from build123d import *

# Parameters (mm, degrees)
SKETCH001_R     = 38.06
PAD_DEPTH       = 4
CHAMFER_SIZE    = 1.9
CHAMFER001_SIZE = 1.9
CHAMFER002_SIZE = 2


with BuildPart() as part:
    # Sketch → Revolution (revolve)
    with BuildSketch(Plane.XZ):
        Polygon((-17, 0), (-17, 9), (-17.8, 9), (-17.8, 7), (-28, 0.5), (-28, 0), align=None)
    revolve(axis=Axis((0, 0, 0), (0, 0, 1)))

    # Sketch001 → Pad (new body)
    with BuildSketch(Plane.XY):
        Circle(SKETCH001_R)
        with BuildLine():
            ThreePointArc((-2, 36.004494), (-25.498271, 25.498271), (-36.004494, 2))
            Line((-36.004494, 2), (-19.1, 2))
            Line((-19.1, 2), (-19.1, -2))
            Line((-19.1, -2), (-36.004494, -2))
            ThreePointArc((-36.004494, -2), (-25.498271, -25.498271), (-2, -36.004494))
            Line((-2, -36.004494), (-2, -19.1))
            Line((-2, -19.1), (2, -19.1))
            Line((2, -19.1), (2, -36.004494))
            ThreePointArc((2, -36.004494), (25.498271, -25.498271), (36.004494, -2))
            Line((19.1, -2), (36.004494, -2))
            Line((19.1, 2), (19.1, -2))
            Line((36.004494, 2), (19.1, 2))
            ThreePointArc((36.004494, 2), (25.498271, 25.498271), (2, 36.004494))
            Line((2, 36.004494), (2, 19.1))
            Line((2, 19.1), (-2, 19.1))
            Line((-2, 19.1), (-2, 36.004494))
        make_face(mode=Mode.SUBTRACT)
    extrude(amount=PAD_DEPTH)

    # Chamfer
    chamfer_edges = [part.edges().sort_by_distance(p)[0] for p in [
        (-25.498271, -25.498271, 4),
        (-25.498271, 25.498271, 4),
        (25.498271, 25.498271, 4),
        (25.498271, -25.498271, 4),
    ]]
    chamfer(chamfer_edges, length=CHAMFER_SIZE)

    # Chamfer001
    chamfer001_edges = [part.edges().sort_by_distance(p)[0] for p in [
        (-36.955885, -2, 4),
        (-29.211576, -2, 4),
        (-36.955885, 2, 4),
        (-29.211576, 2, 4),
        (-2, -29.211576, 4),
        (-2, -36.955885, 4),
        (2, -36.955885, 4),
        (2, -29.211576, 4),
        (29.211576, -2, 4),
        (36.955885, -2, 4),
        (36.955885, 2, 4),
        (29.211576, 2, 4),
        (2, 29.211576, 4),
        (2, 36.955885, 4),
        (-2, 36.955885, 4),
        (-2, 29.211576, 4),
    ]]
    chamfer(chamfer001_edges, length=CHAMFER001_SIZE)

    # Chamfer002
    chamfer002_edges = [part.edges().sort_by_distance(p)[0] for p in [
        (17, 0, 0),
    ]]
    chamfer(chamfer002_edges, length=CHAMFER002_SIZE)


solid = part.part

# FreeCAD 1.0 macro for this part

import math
import FreeCAD as App
import Part
import Sketcher
Q = App.Units.Quantity


def edges_at(feature, points):
    """Names of the edges that pass closest to the given points."""
    edges = feature.Shape.Edges
    near = lambda p: min(range(len(edges)), key=lambda i: edges[i].distToShape(Part.Vertex(*p))[0])
    return sorted({f"Edge{near(p) + 1}" for p in points})

doc = App.newDocument("Part")
body = doc.addObject("PartDesign::Body", "Body")

# Sketch on XZ plane
sketch1 = body.newObject("Sketcher::SketchObject", "Sketch")
sketch1.AttachmentSupport = (doc.getObject("XZ_Plane"), [""])
sketch1.MapMode = "FlatFace"
sketch1.addGeometry([
    Part.LineSegment(App.Vector(-17, 0, 0), App.Vector(-17, 9, 0)),  # 0
    Part.LineSegment(App.Vector(-17, 9, 0), App.Vector(-17.8, 9, 0)),  # 1
    Part.LineSegment(App.Vector(-17.8, 9, 0), App.Vector(-17.8, 7, 0)),  # 2
    Part.LineSegment(App.Vector(-17.8, 7, 0), App.Vector(-28, 0.5, 0)),  # 3
    Part.LineSegment(App.Vector(-28, 0.5, 0), App.Vector(-28, 0, 0)),  # 4
    Part.LineSegment(App.Vector(-28, 0, 0), App.Vector(-17, 0, 0)),  # 5
], False)
sketch1.addConstraint([
    Sketcher.Constraint("Coincident", 0, 2, 1, 1),
    Sketcher.Constraint("Coincident", 1, 2, 2, 1),
    Sketcher.Constraint("Coincident", 2, 2, 3, 1),
    Sketcher.Constraint("Coincident", 3, 2, 4, 1),
    Sketcher.Constraint("Coincident", 4, 2, 5, 1),
    Sketcher.Constraint("Coincident", 5, 2, 0, 1),
    Sketcher.Constraint("Vertical", 0),
    Sketcher.Constraint("Horizontal", 1),
    Sketcher.Constraint("Vertical", 2),
    Sketcher.Constraint("Vertical", 4),
    Sketcher.Constraint("Horizontal", 5),
    Sketcher.Constraint("PointOnObject", 4, 2, -1),
    Sketcher.Constraint("DistanceX", 5, 1, 5, 2, Q("11 mm")),
    Sketcher.Constraint("DistanceY", 0, 1, 0, 2, Q("9 mm")),
    Sketcher.Constraint("DistanceY", 2, 2, 2, 1, Q("2 mm")),
    Sketcher.Constraint("DistanceX", 1, 2, 1, 1, Q("0.8 mm")),
    Sketcher.Constraint("DistanceY", 4, 2, 4, 1, Q("0.5 mm")),
    Sketcher.Constraint("DistanceX", 0, 2, -1, 1, Q("17 mm")),
])
revolution = body.newObject("PartDesign::Revolution", "Revolution")
revolution.Profile = sketch1
revolution.ReferenceAxis = (sketch1, ["V_Axis"])
revolution.Angle = 360

# Sketch on XY plane
sketch2 = body.newObject("Sketcher::SketchObject", "Sketch001")
sketch2.AttachmentSupport = (doc.getObject("XY_Plane"), [""])
sketch2.MapMode = "FlatFace"
sketch2.addGeometry([
    Part.Circle(App.Vector(0, 0, 0), App.Vector(0, 0, 1), 38.1),  # 0
    Part.ArcOfCircle(Part.Circle(App.Vector(0, 0, 0), App.Vector(0, 0, 1), 36.1), math.radians(93), math.radians(177)),  # 1
    Part.LineSegment(App.Vector(-2, 36, 0), App.Vector(-2, 19.1, 0)),  # 2
    Part.LineSegment(App.Vector(-2, 19.1, 0), App.Vector(2, 19.1, 0)),  # 3
    Part.LineSegment(App.Vector(2, 19.1, 0), App.Vector(2, 36, 0)),  # 4
    Part.ArcOfCircle(Part.Circle(App.Vector(0, 0, 0), App.Vector(0, 0, 1), 36.1), math.radians(3), math.radians(87)),  # 5
    Part.LineSegment(App.Vector(36, 2, 0), App.Vector(19.1, 2, 0)),  # 6
    Part.LineSegment(App.Vector(19.1, 2, 0), App.Vector(19.1, -2, 0)),  # 7
    Part.LineSegment(App.Vector(19.1, -2, 0), App.Vector(36, -2, 0)),  # 8
    Part.ArcOfCircle(Part.Circle(App.Vector(0, 0, 0), App.Vector(0, 0, 1), 36.1), math.radians(-87), math.radians(-3)),  # 9
    Part.LineSegment(App.Vector(2, -36, 0), App.Vector(2, -19.1, 0)),  # 10
    Part.LineSegment(App.Vector(2, -19.1, 0), App.Vector(-2, -19.1, 0)),  # 11
    Part.LineSegment(App.Vector(-2, -19.1, 0), App.Vector(-2, -36, 0)),  # 12
    Part.ArcOfCircle(Part.Circle(App.Vector(0, 0, 0), App.Vector(0, 0, 1), 36.1), math.radians(-177), math.radians(-93)),  # 13
    Part.LineSegment(App.Vector(-36, -2, 0), App.Vector(-19.1, -2, 0)),  # 14
    Part.LineSegment(App.Vector(-19.1, -2, 0), App.Vector(-19.1, 2, 0)),  # 15
    Part.LineSegment(App.Vector(-19.1, 2, 0), App.Vector(-36, 2, 0)),  # 16
], False)
sketch2.addConstraint([
    Sketcher.Constraint("Coincident", 1, 1, 2, 1),
    Sketcher.Constraint("Coincident", 2, 2, 3, 1),
    Sketcher.Constraint("Coincident", 3, 2, 4, 1),
    Sketcher.Constraint("Coincident", 4, 2, 5, 2),
    Sketcher.Constraint("Coincident", 5, 1, 6, 1),
    Sketcher.Constraint("Coincident", 6, 2, 7, 1),
    Sketcher.Constraint("Coincident", 7, 2, 8, 1),
    Sketcher.Constraint("Coincident", 8, 2, 9, 2),
    Sketcher.Constraint("Coincident", 9, 1, 10, 1),
    Sketcher.Constraint("Coincident", 10, 2, 11, 1),
    Sketcher.Constraint("Coincident", 11, 2, 12, 1),
    Sketcher.Constraint("Coincident", 12, 2, 13, 2),
    Sketcher.Constraint("Coincident", 13, 1, 14, 1),
    Sketcher.Constraint("Coincident", 14, 2, 15, 1),
    Sketcher.Constraint("Coincident", 15, 2, 16, 1),
    Sketcher.Constraint("Coincident", 16, 2, 1, 2),
    Sketcher.Constraint("Vertical", 2),
    Sketcher.Constraint("Horizontal", 3),
    Sketcher.Constraint("Vertical", 4),
    Sketcher.Constraint("Horizontal", 6),
    Sketcher.Constraint("Vertical", 7),
    Sketcher.Constraint("Horizontal", 8),
    Sketcher.Constraint("Vertical", 10),
    Sketcher.Constraint("Horizontal", 11),
    Sketcher.Constraint("Vertical", 12),
    Sketcher.Constraint("Horizontal", 14),
    Sketcher.Constraint("Vertical", 15),
    Sketcher.Constraint("Horizontal", 16),
    Sketcher.Constraint("Coincident", 0, 3, -1, 1),
    Sketcher.Constraint("Coincident", 1, 3, -1, 1),
    Sketcher.Constraint("Coincident", 5, 3, -1, 1),
    Sketcher.Constraint("Coincident", 9, 3, -1, 1),
    Sketcher.Constraint("Coincident", 13, 3, -1, 1),
    Sketcher.Constraint("Equal", 1, 5),
    Sketcher.Constraint("Equal", 5, 9),
    Sketcher.Constraint("Equal", 9, 13),
    Sketcher.Constraint("Symmetric", 2, 2, 10, 2, -1, 1),
    Sketcher.Constraint("Symmetric", 6, 2, 14, 2, -1, 1),
    Sketcher.Constraint("Horizontal", 1, 1, 4, 2),
    Sketcher.Constraint("Horizontal", 9, 1, 12, 2),
    Sketcher.Constraint("Horizontal", 8, 2, 13, 1),
    Sketcher.Constraint("Horizontal", 6, 2, 15, 2),
    Sketcher.Constraint("Equal", 16, 2),
    Sketcher.Constraint("Equal", 11, 7),
    Sketcher.Constraint("Diameter", 0, Q("76.12 mm")),
    Sketcher.Constraint("DistanceX", 3, 1, 3, 2, Q("4 mm")),
    Sketcher.Constraint("DistanceY", -1, 1, 2, 2, Q("19.1 mm")),
    Sketcher.Constraint("Radius", 1, Q("36.059997 mm")),
])
pad1 = body.newObject("PartDesign::Pad", "Pad")
pad1.Profile = sketch2
pad1.Length = 4
doc.recompute()

chamfer = body.newObject("PartDesign::Chamfer", "Chamfer")
chamfer.Base = (pad1, edges_at(pad1, [
    (-25.498, -25.498, 4),
    (-25.498, 25.498, 4),
    (25.498, 25.498, 4),
    (25.498, -25.498, 4),
]))
chamfer.Size = 1.9
doc.recompute()

chamfer2 = body.newObject("PartDesign::Chamfer", "Chamfer001")
chamfer2.Base = (chamfer, edges_at(chamfer, [
    (-30.163, -2, 4),
    (-30.163, -2, 4),
    (-30.163, 2, 4),
    (-30.163, 2, 4),
    (-2, -30.163, 4),
    (-2, -30.163, 4),
    (2, -30.163, 4),
    (2, -30.163, 4),
    (30.163, -2, 4),
    (30.163, -2, 4),
    (30.163, 2, 4),
    (30.163, 2, 4),
    (2, 30.163, 4),
    (2, 30.163, 4),
    (-2, 30.163, 4),
    (-2, 30.163, 4),
]))
chamfer2.Size = 1.9
doc.recompute()

chamfer3 = body.newObject("PartDesign::Chamfer", "Chamfer002")
chamfer3.Base = (chamfer2, edges_at(chamfer2, [(17, 0, 0)]))
chamfer3.Size = 2

doc.recompute()
